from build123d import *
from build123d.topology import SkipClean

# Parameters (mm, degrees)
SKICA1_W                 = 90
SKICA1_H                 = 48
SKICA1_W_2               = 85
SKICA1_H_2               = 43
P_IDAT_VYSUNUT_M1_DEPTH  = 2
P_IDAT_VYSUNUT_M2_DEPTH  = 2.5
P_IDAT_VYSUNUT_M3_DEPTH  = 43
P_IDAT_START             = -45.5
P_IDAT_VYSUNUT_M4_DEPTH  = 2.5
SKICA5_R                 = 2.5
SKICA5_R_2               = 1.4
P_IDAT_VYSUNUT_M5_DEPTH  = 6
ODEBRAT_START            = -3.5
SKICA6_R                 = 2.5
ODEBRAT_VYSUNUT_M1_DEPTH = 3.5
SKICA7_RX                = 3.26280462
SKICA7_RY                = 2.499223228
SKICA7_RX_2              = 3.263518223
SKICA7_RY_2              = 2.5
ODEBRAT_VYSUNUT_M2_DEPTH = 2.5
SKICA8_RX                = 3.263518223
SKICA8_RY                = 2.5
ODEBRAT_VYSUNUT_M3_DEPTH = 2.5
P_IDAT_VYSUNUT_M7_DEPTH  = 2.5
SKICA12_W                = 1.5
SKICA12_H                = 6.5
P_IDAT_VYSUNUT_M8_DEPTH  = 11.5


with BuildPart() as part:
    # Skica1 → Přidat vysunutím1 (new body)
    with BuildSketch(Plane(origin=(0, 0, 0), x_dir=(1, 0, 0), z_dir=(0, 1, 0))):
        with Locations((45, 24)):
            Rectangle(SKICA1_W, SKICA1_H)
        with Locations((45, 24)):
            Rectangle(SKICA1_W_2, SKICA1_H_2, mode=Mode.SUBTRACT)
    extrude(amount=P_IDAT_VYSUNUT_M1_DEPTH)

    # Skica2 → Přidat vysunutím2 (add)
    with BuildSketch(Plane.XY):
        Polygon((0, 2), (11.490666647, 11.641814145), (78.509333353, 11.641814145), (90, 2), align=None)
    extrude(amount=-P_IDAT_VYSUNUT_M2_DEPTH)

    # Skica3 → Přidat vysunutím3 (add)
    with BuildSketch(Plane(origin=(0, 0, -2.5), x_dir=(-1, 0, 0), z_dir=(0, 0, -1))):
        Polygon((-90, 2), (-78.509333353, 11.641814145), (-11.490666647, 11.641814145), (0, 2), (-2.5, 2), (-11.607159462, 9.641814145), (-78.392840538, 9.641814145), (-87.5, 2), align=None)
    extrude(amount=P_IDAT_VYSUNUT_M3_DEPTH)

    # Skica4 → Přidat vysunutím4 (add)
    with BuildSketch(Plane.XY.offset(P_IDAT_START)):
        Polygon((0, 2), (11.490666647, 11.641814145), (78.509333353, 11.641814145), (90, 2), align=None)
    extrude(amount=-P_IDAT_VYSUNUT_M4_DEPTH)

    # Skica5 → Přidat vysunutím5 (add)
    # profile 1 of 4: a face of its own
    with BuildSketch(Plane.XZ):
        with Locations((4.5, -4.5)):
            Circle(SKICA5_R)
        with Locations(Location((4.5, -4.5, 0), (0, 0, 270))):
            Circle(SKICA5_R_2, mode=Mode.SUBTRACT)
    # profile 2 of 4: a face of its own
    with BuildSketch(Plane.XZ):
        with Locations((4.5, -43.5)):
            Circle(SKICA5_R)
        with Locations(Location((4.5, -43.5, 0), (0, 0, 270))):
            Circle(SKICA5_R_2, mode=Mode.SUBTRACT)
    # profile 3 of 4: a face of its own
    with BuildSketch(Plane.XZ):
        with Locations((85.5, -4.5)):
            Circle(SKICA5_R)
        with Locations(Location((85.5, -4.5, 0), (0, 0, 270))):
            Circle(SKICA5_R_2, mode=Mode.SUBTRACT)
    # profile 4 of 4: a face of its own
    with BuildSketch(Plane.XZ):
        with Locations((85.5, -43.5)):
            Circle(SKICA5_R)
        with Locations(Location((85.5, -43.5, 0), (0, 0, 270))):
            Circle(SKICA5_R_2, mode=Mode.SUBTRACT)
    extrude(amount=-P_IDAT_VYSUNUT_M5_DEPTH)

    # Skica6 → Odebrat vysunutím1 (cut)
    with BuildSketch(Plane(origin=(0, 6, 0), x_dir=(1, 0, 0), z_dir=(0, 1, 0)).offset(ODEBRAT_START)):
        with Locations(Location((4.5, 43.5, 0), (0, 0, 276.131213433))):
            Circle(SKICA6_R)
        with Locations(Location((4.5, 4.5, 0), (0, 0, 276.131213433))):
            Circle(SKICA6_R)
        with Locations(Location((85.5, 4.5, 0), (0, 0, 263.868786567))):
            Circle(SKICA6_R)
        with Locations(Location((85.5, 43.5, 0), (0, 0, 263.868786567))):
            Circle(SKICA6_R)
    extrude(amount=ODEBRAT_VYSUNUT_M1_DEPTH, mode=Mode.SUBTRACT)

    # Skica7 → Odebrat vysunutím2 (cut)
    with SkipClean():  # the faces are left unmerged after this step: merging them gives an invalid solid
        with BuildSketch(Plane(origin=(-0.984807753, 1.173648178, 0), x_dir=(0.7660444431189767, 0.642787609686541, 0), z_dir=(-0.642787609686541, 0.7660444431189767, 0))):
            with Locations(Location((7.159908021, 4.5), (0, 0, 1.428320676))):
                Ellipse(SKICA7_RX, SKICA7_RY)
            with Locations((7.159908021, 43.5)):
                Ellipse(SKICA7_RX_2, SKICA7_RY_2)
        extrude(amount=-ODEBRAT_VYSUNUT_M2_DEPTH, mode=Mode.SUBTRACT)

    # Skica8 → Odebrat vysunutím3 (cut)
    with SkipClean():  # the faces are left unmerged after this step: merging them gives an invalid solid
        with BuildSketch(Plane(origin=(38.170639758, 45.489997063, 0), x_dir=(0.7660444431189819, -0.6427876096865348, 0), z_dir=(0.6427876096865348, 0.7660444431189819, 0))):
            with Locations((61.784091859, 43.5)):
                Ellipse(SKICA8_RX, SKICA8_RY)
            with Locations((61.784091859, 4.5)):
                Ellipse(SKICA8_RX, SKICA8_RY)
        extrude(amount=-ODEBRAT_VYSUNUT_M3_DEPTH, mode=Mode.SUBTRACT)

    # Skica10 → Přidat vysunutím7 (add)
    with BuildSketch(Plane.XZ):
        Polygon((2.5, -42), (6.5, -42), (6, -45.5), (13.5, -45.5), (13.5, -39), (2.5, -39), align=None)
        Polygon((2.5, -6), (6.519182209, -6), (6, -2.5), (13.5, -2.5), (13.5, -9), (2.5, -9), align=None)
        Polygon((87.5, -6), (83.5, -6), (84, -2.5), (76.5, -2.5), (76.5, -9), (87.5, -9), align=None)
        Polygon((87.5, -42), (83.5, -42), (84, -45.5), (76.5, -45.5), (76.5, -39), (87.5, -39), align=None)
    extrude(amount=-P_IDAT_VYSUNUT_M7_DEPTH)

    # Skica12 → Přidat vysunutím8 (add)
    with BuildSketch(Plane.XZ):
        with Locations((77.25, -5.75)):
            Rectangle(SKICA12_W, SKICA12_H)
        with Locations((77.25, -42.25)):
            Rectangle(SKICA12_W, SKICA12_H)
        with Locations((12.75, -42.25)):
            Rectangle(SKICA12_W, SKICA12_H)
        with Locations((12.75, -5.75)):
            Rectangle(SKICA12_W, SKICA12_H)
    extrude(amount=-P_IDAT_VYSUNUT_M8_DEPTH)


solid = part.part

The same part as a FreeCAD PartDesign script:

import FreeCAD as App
import Part
import Sketcher
Q = App.Units.Quantity


def add_polygon(sketch, points):
    """Adds a closed chain of lines whose ends are joined by coincident constraints."""
    first, n = sketch.GeometryCount, len(points)
    for a, b in zip(points, points[1:] + points[:1]):
        sketch.addGeometry(Part.LineSegment(App.Vector(*a, 0), App.Vector(*b, 0)), False)
    for i in range(n):
        sketch.addConstraint(Sketcher.Constraint("Coincident", first + i, 2, first + (i + 1) % n, 1))

doc = App.newDocument("Part")
body = doc.addObject("PartDesign::Body", "Body")

# Sketch on XZ plane
sketch1 = doc.addObject("Sketcher::SketchObject", "Sketch")
body.addObject(sketch1)
sketch1.AttachmentSupport = (doc.XZ_Plane, [""])
sketch1.MapMode = "FlatFace"
add_polygon(sketch1, [(0, -48), (0, 0), (90, 0), (90, -48)])  # lines 0-3
add_polygon(sketch1, [(87.5, -2.5), (2.5, -2.5), (2.5, -45.5), (87.5, -45.5)])  # lines 4-7
sketch1.addConstraint(Sketcher.Constraint("Vertical", 0))
sketch1.addConstraint(Sketcher.Constraint("Horizontal", 1))
sketch1.addConstraint(Sketcher.Constraint("Vertical", 2))
sketch1.addConstraint(Sketcher.Constraint("Horizontal", 3))
sketch1.addConstraint(Sketcher.Constraint("Horizontal", 4))
sketch1.addConstraint(Sketcher.Constraint("Vertical", 5))
sketch1.addConstraint(Sketcher.Constraint("Horizontal", 6))
sketch1.addConstraint(Sketcher.Constraint("Vertical", 7))
sketch1.addConstraint(Sketcher.Constraint("Coincident", 0, 2, -1, 1))
sketch1.addConstraint(Sketcher.Constraint("DistanceX", 1, 1, 1, 2, 90.0))
sketch1.addConstraint(Sketcher.Constraint("DistanceX", 4, 2, 4, 1, 85.0))
sketch1.addConstraint(Sketcher.Constraint("DistanceY", 0, 1, 0, 2, 48.0))
sketch1.addConstraint(Sketcher.Constraint("DistanceY", 5, 2, 5, 1, 43.0))
sketch1.addConstraint(Sketcher.Constraint("DistanceX", -1, 1, 4, 2, 2.5))
sketch1.addConstraint(Sketcher.Constraint("DistanceY", 4, 2, -1, 1, 2.5))
pad1 = doc.addObject("PartDesign::Pad", "Pad")
body.addObject(pad1)
pad1.Profile = sketch1
pad1.Length = 2
pad1.Reversed = True

# Sketch on XY plane
sketch2 = doc.addObject("Sketcher::SketchObject", "Sketch001")
body.addObject(sketch2)
sketch2.AttachmentSupport = (doc.XY_Plane, [""])
sketch2.MapMode = "FlatFace"
add_polygon(sketch2, [(11.490667, 11.641814), (0, 2), (90, 2), (78.509333, 11.641814)])  # lines 0-3
sketch2.addConstraint(Sketcher.Constraint("Horizontal", 1))
sketch2.addConstraint(Sketcher.Constraint("Horizontal", 3))
sketch2.addConstraint(Sketcher.Constraint("PointOnObject", 0, 2, -2))
sketch2.addConstraint(Sketcher.Constraint("Equal", 0, 2))
sketch2.addConstraint(Sketcher.Constraint("DistanceX", 1, 1, 1, 2, 90.0))
sketch2.addConstraint(Sketcher.Constraint("Angle", 0, Q("-140 deg")))
sketch2.addConstraint(Sketcher.Constraint("Distance", 0, 15.0))
sketch2.addConstraint(Sketcher.Constraint("DistanceY", -1, 1, 0, 2, 2.0))
pad2 = doc.addObject("PartDesign::Pad", "Pad001")
body.addObject(pad2)
pad2.Profile = sketch2
pad2.Length = 2.5
pad2.Reversed = True

# Sketch on XY plane
sketch3 = doc.addObject("Sketcher::SketchObject", "Sketch002")
body.addObject(sketch3)
sketch3.AttachmentSupport = (doc.XY_Plane, [""])
sketch3.MapMode = "FlatFace"
sketch3.AttachmentOffset = App.Placement(App.Vector(0, 0, -2.5), App.Rotation())
add_polygon(sketch3, [(78.509333, 11.641814), (90, 2), (87.5, 2), (78.392841, 9.641814), (11.607159, 9.641814), (2.5, 2), (0, 2), (11.490667, 11.641814)])  # lines 0-7
sketch3.addConstraint(Sketcher.Constraint("Horizontal", 1))
sketch3.addConstraint(Sketcher.Constraint("Horizontal", 3))
sketch3.addConstraint(Sketcher.Constraint("Horizontal", 5))
sketch3.addConstraint(Sketcher.Constraint("Horizontal", 7))
sketch3.addConstraint(Sketcher.Constraint("PointOnObject", 5, 2, -2))
sketch3.addConstraint(Sketcher.Constraint("Parallel", 0, 2))
sketch3.addConstraint(Sketcher.Constraint("Parallel", 4, 6))
sketch3.addConstraint(Sketcher.Constraint("Horizontal", 1, 2, 4, 2))
sketch3.addConstraint(Sketcher.Constraint("Equal", 1, 5))
sketch3.addConstraint(Sketcher.Constraint("Equal", 2, 4))
sketch3.addConstraint(Sketcher.Constraint("Angle", 0, Q("-40 deg")))
sketch3.addConstraint(Sketcher.Constraint("Distance", 0, 15.0))
sketch3.addConstraint(Sketcher.Constraint("DistanceX", 1, 2, 1, 1, 2.5))
sketch3.addConstraint(Sketcher.Constraint("DistanceX", -1, 1, 0, 2, 90.0))
sketch3.addConstraint(Sketcher.Constraint("DistanceY", -1, 1, 0, 2, 2.0))
sketch3.addConstraint(Sketcher.Constraint("DistanceY", 3, 2, 6, 2, 2.0))
pad3 = doc.addObject("PartDesign::Pad", "Pad002")
body.addObject(pad3)
pad3.Profile = sketch3
pad3.Length = 43
pad3.Reversed = True

# Sketch on XY plane
sketch4 = doc.addObject("Sketcher::SketchObject", "Sketch003")
body.addObject(sketch4)
sketch4.AttachmentSupport = (doc.XY_Plane, [""])
sketch4.MapMode = "FlatFace"
sketch4.AttachmentOffset = App.Placement(App.Vector(0, 0, -45.5), App.Rotation())
add_polygon(sketch4, [(11.490667, 11.641814), (0, 2), (90, 2), (78.509333, 11.641814)])  # lines 0-3
sketch4.addConstraint(Sketcher.Constraint("Horizontal", 1))
sketch4.addConstraint(Sketcher.Constraint("Horizontal", 3))
sketch4.addConstraint(Sketcher.Constraint("PointOnObject", 0, 2, -2))
sketch4.addConstraint(Sketcher.Constraint("Equal", 0, 2))
sketch4.addConstraint(Sketcher.Constraint("DistanceX", 1, 1, 1, 2, 90.0))
sketch4.addConstraint(Sketcher.Constraint("Angle", 0, Q("-140 deg")))
sketch4.addConstraint(Sketcher.Constraint("Distance", 0, 15.0))
sketch4.addConstraint(Sketcher.Constraint("DistanceY", -1, 1, 0, 2, 2.0))
pad4 = doc.addObject("PartDesign::Pad", "Pad003")
body.addObject(pad4)
pad4.Profile = sketch4
pad4.Length = 2.5
pad4.Reversed = True

# Sketch on XZ plane
sketch5 = doc.addObject("Sketcher::SketchObject", "Sketch004")
body.addObject(sketch5)
sketch5.AttachmentSupport = (doc.XZ_Plane, [""])
sketch5.MapMode = "FlatFace"
sketch5.addGeometry(Part.Circle(App.Vector(4.5, -4.5, 0), App.Vector(0, 0, 1), 2.5), False)
sketch5.addGeometry(Part.Circle(App.Vector(4.5, -4.5, 0), App.Vector(0, 0, 1), 1.4), False)
sketch5.addGeometry(Part.Circle(App.Vector(4.5, -43.5, 0), App.Vector(0, 0, 1), 2.5), False)
sketch5.addGeometry(Part.Circle(App.Vector(4.5, -43.5, 0), App.Vector(0, 0, 1), 1.4), False)
sketch5.addGeometry(Part.Circle(App.Vector(85.5, -4.5, 0), App.Vector(0, 0, 1), 2.5), False)
sketch5.addGeometry(Part.Circle(App.Vector(85.5, -4.5, 0), App.Vector(0, 0, 1), 1.4), False)
sketch5.addGeometry(Part.Circle(App.Vector(85.5, -43.5, 0), App.Vector(0, 0, 1), 2.5), False)
sketch5.addGeometry(Part.Circle(App.Vector(85.5, -43.5, 0), App.Vector(0, 0, 1), 1.4), False)
sketch5.addConstraint(Sketcher.Constraint("Coincident", 1, 3, 0, 3))
sketch5.addConstraint(Sketcher.Constraint("Coincident", 3, 3, 2, 3))
sketch5.addConstraint(Sketcher.Constraint("Coincident", 5, 3, 4, 3))
sketch5.addConstraint(Sketcher.Constraint("Coincident", 7, 3, 6, 3))
sketch5.addConstraint(Sketcher.Constraint("Equal", 0, 2))
sketch5.addConstraint(Sketcher.Constraint("Equal", 1, 3))
sketch5.addConstraint(Sketcher.Constraint("Equal", 2, 4))
sketch5.addConstraint(Sketcher.Constraint("Equal", 3, 5))
sketch5.addConstraint(Sketcher.Constraint("Equal", 4, 6))
sketch5.addConstraint(Sketcher.Constraint("Equal", 5, 7))
sketch5.addConstraint(Sketcher.Constraint("Horizontal", 1, 3, 4, 3))
sketch5.addConstraint(Sketcher.Constraint("Horizontal", 3, 3, 6, 3))
sketch5.addConstraint(Sketcher.Constraint("Vertical", 1, 3, 2, 3))
sketch5.addConstraint(Sketcher.Constraint("Vertical", 5, 3, 6, 3))
sketch5.addConstraint(Sketcher.Constraint("Diameter", 0, 5.0))
sketch5.addConstraint(Sketcher.Constraint("Diameter", 1, 2.8))
sketch5.addConstraint(Sketcher.Constraint("DistanceY", 2, 3, 0, 3, 39.0))
sketch5.addConstraint(Sketcher.Constraint("DistanceX", 0, 3, 4, 3, 81.0))
sketch5.addConstraint(Sketcher.Constraint("DistanceX", -1, 1, 0, 3, 4.5))
sketch5.addConstraint(Sketcher.Constraint("DistanceY", 0, 3, -1, 1, 4.5))
pad5 = doc.addObject("PartDesign::Pad", "Pad004")
body.addObject(pad5)
pad5.Profile = sketch5
pad5.Length = 6
pad5.Reversed = True

# Sketch on XZ plane
sketch6 = doc.addObject("Sketcher::SketchObject", "Sketch005")
body.addObject(sketch6)
sketch6.AttachmentSupport = (doc.XZ_Plane, [""])
sketch6.MapMode = "FlatFace"
sketch6.AttachmentOffset = App.Placement(App.Vector(0, 0, -2.5), App.Rotation())
sketch6.addGeometry(Part.Circle(App.Vector(4.5, -43.5, 0), App.Vector(0, 0, 1), 2.5), False)
sketch6.addGeometry(Part.Circle(App.Vector(4.5, -4.5, 0), App.Vector(0, 0, 1), 2.5), False)
sketch6.addGeometry(Part.Circle(App.Vector(85.5, -4.5, 0), App.Vector(0, 0, 1), 2.5), False)
sketch6.addGeometry(Part.Circle(App.Vector(85.5, -43.5, 0), App.Vector(0, 0, 1), 2.5), False)
sketch6.addConstraint(Sketcher.Constraint("Equal", 0, 1))
sketch6.addConstraint(Sketcher.Constraint("Equal", 1, 2))
sketch6.addConstraint(Sketcher.Constraint("Equal", 2, 3))
sketch6.addConstraint(Sketcher.Constraint("Horizontal", 1, 3, 2, 3))
sketch6.addConstraint(Sketcher.Constraint("Horizontal", 0, 3, 3, 3))
sketch6.addConstraint(Sketcher.Constraint("Vertical", 0, 3, 1, 3))
sketch6.addConstraint(Sketcher.Constraint("Vertical", 2, 3, 3, 3))
sketch6.addConstraint(Sketcher.Constraint("Diameter", 0, 5.0))
sketch6.addConstraint(Sketcher.Constraint("DistanceY", 0, 3, 1, 3, 39.0))
sketch6.addConstraint(Sketcher.Constraint("DistanceX", 1, 3, 2, 3, 81.0))
sketch6.addConstraint(Sketcher.Constraint("DistanceX", -1, 1, 0, 3, 4.5))
sketch6.addConstraint(Sketcher.Constraint("DistanceY", 0, 3, -1, 1, 43.5))
pocket1 = doc.addObject("PartDesign::Pocket", "Pocket")
body.addObject(pocket1)
pocket1.Profile = sketch6
pocket1.Length = 3.5

# Sketch on an angled plane
sketch7 = doc.addObject("Sketcher::SketchObject", "Sketch006")
body.addObject(sketch7)
sketch7.Placement = App.Placement(App.Vector(-0.984808, 1.173648, 0), App.Rotation(App.Vector(0.766044443, 0.64278761, 0), App.Vector(0, 0, -1), App.Vector(-0.64278761, 0.766044443, 0), "ZXY"))
sketch7.addGeometry(Part.Ellipse(App.Vector(10.421699, 4.58133, 0), App.Vector(7.097612, 6.998447, 0), App.Vector(7.159908, 4.5, 0)), False)
sketch7.addGeometry(Part.Ellipse(App.Vector(10.423426, 43.5, 0), App.Vector(7.159908, 46, 0), App.Vector(7.159908, 43.5, 0)), False)
sketch7.addConstraint(Sketcher.Constraint("Block", 0))
sketch7.addConstraint(Sketcher.Constraint("Block", 1))
pocket2 = doc.addObject("PartDesign::Pocket", "Pocket001")
body.addObject(pocket2)
pocket2.Profile = sketch7
pocket2.Length = 2.5

# Sketch on an angled plane
sketch8 = doc.addObject("Sketcher::SketchObject", "Sketch007")
body.addObject(sketch8)
sketch8.Placement = App.Placement(App.Vector(38.17064, 45.489997, 0), App.Rotation(App.Vector(0.766044443, -0.64278761, 0), App.Vector(0, 0, -1), App.Vector(0.64278761, 0.766044443, 0), "ZXY"))
sketch8.addGeometry(Part.Ellipse(App.Vector(65.04761, 43.5, 0), App.Vector(61.784092, 46, 0), App.Vector(61.784092, 43.5, 0)), False)
sketch8.addGeometry(Part.Ellipse(App.Vector(65.04761, 4.5, 0), App.Vector(61.784092, 7, 0), App.Vector(61.784092, 4.5, 0)), False)
sketch8.addConstraint(Sketcher.Constraint("Block", 0))
sketch8.addConstraint(Sketcher.Constraint("Block", 1))
pocket3 = doc.addObject("PartDesign::Pocket", "Pocket002")
body.addObject(pocket3)
pocket3.Profile = sketch8
pocket3.Length = 2.5

# Sketch on XZ plane
sketch9 = doc.addObject("Sketcher::SketchObject", "Sketch008")
body.addObject(sketch9)
sketch9.AttachmentSupport = (doc.XZ_Plane, [""])
sketch9.MapMode = "FlatFace"
add_polygon(sketch9, [(2.5, -42), (6.5, -42), (6, -45.5), (13.5, -45.5), (13.5, -39), (2.5, -39)])  # lines 0-5
add_polygon(sketch9, [(6.519182, -6), (2.5, -6), (2.5, -9), (13.5, -9), (13.5, -2.5), (6, -2.5)])  # lines 6-11
add_polygon(sketch9, [(87.5, -6), (83.5, -6), (84, -2.5), (76.5, -2.5), (76.5, -9), (87.5, -9)])  # lines 12-17
add_polygon(sketch9, [(83.5, -42), (87.5, -42), (87.5, -39), (76.5, -39), (76.5, -45.5), (84, -45.5)])  # lines 18-23
sketch9.addConstraint(Sketcher.Constraint("Horizontal", 0))
sketch9.addConstraint(Sketcher.Constraint("Horizontal", 2))
sketch9.addConstraint(Sketcher.Constraint("Vertical", 3))
sketch9.addConstraint(Sketcher.Constraint("Horizontal", 4))
sketch9.addConstraint(Sketcher.Constraint("Vertical", 5))
sketch9.addConstraint(Sketcher.Constraint("Horizontal", 6))
sketch9.addConstraint(Sketcher.Constraint("Vertical", 7))
sketch9.addConstraint(Sketcher.Constraint("Horizontal", 8))
sketch9.addConstraint(Sketcher.Constraint("Vertical", 9))
sketch9.addConstraint(Sketcher.Constraint("Horizontal", 10))
sketch9.addConstraint(Sketcher.Constraint("Horizontal", 12))
sketch9.addConstraint(Sketcher.Constraint("Horizontal", 14))
sketch9.addConstraint(Sketcher.Constraint("Vertical", 15))
sketch9.addConstraint(Sketcher.Constraint("Horizontal", 16))
sketch9.addConstraint(Sketcher.Constraint("Vertical", 17))
sketch9.addConstraint(Sketcher.Constraint("Horizontal", 18))
sketch9.addConstraint(Sketcher.Constraint("Vertical", 19))
sketch9.addConstraint(Sketcher.Constraint("Horizontal", 20))
sketch9.addConstraint(Sketcher.Constraint("Vertical", 21))
sketch9.addConstraint(Sketcher.Constraint("Horizontal", 22))
sketch9.addConstraint(Sketcher.Constraint("Parallel", 1, 13))
sketch9.addConstraint(Sketcher.Constraint("Horizontal", 11, 2, 12, 2))
sketch9.addConstraint(Sketcher.Constraint("Horizontal", 10, 2, 13, 2))
sketch9.addConstraint(Sketcher.Constraint("Horizontal", 8, 2, 15, 2))
sketch9.addConstraint(Sketcher.Constraint("Horizontal", 5, 2, 18, 2))
sketch9.addConstraint(Sketcher.Constraint("Horizontal", 4, 2, 19, 2))
sketch9.addConstraint(Sketcher.Constraint("Horizontal", 2, 2, 21, 2))
sketch9.addConstraint(Sketcher.Constraint("Vertical", 5, 2, 6, 2))
sketch9.addConstraint(Sketcher.Constraint("Vertical", 3, 2, 8, 2))
sketch9.addConstraint(Sketcher.Constraint("Vertical", 1, 2, 10, 2))
sketch9.addConstraint(Sketcher.Constraint("Vertical", 17, 2, 18, 2))
sketch9.addConstraint(Sketcher.Constraint("Vertical", 15, 2, 20, 2))
sketch9.addConstraint(Sketcher.Constraint("Vertical", 13, 2, 22, 2))
sketch9.addConstraint(Sketcher.Constraint("Vertical", 12, 2, 23, 2))
sketch9.addConstraint(Sketcher.Constraint("Equal", 0, 12))
sketch9.addConstraint(Sketcher.Constraint("Equal", 10, 14))
sketch9.addConstraint(Sketcher.Constraint("Equal", 8, 16))
sketch9.addConstraint(Sketcher.Constraint("Equal", 5, 7))
sketch9.addConstraint(Sketcher.Constraint("DistanceX", 0, 1, 0, 2, 4.0))
sketch9.addConstraint(Sketcher.Constraint("DistanceX", 4, 2, 4, 1, 11.0))
sketch9.addConstraint(Sketcher.Constraint("DistanceY", 5, 2, 5, 1, 3.0))
sketch9.addConstraint(Sketcher.Constraint("DistanceX", 2, 1, 2, 2, 7.5))
sketch9.addConstraint(Sketcher.Constraint("DistanceY", 3, 1, 3, 2, 6.5))
sketch9.addConstraint(Sketcher.Constraint("DistanceY", 0, 2, -1, 1, 42.0))
sketch9.addConstraint(Sketcher.Constraint("DistanceX", -1, 1, 1, 2, 6.0))
sketch9.addConstraint(Sketcher.Constraint("DistanceY", 6, 2, -1, 1, 6.0))
sketch9.addConstraint(Sketcher.Constraint("DistanceX", -1, 1, 13, 2, 84.0))
sketch9.addConstraint(Sketcher.Constraint("DistanceX", 6, 2, 6, 1, 4.019182))
pad6 = doc.addObject("PartDesign::Pad", "Pad005")
body.addObject(pad6)
pad6.Profile = sketch9
pad6.Length = 2.5
pad6.Reversed = True

# Sketch on XZ plane
sketch10 = doc.addObject("Sketcher::SketchObject", "Sketch009")
body.addObject(sketch10)
sketch10.AttachmentSupport = (doc.XZ_Plane, [""])
sketch10.MapMode = "FlatFace"
add_polygon(sketch10, [(76.5, -2.5), (76.5, -9), (78, -9), (78, -2.5)])  # lines 0-3
add_polygon(sketch10, [(76.5, -39), (76.5, -45.5), (78, -45.5), (78, -39)])  # lines 4-7
add_polygon(sketch10, [(12, -39), (12, -45.5), (13.5, -45.5), (13.5, -39)])  # lines 8-11
add_polygon(sketch10, [(12, -2.5), (12, -9), (13.5, -9), (13.5, -2.5)])  # lines 12-15
sketch10.addConstraint(Sketcher.Constraint("Vertical", 0))
sketch10.addConstraint(Sketcher.Constraint("Horizontal", 1))
sketch10.addConstraint(Sketcher.Constraint("Vertical", 2))
sketch10.addConstraint(Sketcher.Constraint("Horizontal", 3))
sketch10.addConstraint(Sketcher.Constraint("Vertical", 4))
sketch10.addConstraint(Sketcher.Constraint("Horizontal", 5))
sketch10.addConstraint(Sketcher.Constraint("Vertical", 6))
sketch10.addConstraint(Sketcher.Constraint("Horizontal", 7))
sketch10.addConstraint(Sketcher.Constraint("Vertical", 8))
sketch10.addConstraint(Sketcher.Constraint("Horizontal", 9))
sketch10.addConstraint(Sketcher.Constraint("Vertical", 10))
sketch10.addConstraint(Sketcher.Constraint("Horizontal", 11))
sketch10.addConstraint(Sketcher.Constraint("Vertical", 12))
sketch10.addConstraint(Sketcher.Constraint("Horizontal", 13))
sketch10.addConstraint(Sketcher.Constraint("Vertical", 14))
sketch10.addConstraint(Sketcher.Constraint("Horizontal", 15))
sketch10.addConstraint(Sketcher.Constraint("Horizontal", 5, 2, 8, 2))
sketch10.addConstraint(Sketcher.Constraint("Horizontal", 7, 2, 10, 2))
sketch10.addConstraint(Sketcher.Constraint("Horizontal", 1, 2, 12, 2))
sketch10.addConstraint(Sketcher.Constraint("Horizontal", 3, 2, 14, 2))
sketch10.addConstraint(Sketcher.Constraint("Vertical", 3, 2, 4, 2))
sketch10.addConstraint(Sketcher.Constraint("Vertical", 2, 2, 5, 2))
sketch10.addConstraint(Sketcher.Constraint("Vertical", 11, 2, 12, 2))
sketch10.addConstraint(Sketcher.Constraint("Vertical", 10, 2, 13, 2))
sketch10.addConstraint(Sketcher.Constraint("Equal", 7, 9))
sketch10.addConstraint(Sketcher.Constraint("Equal", 2, 4))
sketch10.addConstraint(Sketcher.Constraint("DistanceX", 1, 1, 1, 2, 1.5))
sketch10.addConstraint(Sketcher.Constraint("DistanceY", 0, 2, 0, 1, 6.5))
sketch10.addConstraint(Sketcher.Constraint("DistanceY", 0, 2, -1, 1, 9.0))
sketch10.addConstraint(Sketcher.Constraint("DistanceX", -1, 1, 1, 2, 78.0))
sketch10.addConstraint(Sketcher.Constraint("DistanceY", 6, 2, -1, 1, 39.0))
sketch10.addConstraint(Sketcher.Constraint("DistanceX", -1, 1, 8, 2, 12.0))
pad7 = doc.addObject("PartDesign::Pad", "Pad006")
body.addObject(pad7)
pad7.Profile = sketch10
pad7.Length = 11.5
pad7.Reversed = True

doc.recompute()
